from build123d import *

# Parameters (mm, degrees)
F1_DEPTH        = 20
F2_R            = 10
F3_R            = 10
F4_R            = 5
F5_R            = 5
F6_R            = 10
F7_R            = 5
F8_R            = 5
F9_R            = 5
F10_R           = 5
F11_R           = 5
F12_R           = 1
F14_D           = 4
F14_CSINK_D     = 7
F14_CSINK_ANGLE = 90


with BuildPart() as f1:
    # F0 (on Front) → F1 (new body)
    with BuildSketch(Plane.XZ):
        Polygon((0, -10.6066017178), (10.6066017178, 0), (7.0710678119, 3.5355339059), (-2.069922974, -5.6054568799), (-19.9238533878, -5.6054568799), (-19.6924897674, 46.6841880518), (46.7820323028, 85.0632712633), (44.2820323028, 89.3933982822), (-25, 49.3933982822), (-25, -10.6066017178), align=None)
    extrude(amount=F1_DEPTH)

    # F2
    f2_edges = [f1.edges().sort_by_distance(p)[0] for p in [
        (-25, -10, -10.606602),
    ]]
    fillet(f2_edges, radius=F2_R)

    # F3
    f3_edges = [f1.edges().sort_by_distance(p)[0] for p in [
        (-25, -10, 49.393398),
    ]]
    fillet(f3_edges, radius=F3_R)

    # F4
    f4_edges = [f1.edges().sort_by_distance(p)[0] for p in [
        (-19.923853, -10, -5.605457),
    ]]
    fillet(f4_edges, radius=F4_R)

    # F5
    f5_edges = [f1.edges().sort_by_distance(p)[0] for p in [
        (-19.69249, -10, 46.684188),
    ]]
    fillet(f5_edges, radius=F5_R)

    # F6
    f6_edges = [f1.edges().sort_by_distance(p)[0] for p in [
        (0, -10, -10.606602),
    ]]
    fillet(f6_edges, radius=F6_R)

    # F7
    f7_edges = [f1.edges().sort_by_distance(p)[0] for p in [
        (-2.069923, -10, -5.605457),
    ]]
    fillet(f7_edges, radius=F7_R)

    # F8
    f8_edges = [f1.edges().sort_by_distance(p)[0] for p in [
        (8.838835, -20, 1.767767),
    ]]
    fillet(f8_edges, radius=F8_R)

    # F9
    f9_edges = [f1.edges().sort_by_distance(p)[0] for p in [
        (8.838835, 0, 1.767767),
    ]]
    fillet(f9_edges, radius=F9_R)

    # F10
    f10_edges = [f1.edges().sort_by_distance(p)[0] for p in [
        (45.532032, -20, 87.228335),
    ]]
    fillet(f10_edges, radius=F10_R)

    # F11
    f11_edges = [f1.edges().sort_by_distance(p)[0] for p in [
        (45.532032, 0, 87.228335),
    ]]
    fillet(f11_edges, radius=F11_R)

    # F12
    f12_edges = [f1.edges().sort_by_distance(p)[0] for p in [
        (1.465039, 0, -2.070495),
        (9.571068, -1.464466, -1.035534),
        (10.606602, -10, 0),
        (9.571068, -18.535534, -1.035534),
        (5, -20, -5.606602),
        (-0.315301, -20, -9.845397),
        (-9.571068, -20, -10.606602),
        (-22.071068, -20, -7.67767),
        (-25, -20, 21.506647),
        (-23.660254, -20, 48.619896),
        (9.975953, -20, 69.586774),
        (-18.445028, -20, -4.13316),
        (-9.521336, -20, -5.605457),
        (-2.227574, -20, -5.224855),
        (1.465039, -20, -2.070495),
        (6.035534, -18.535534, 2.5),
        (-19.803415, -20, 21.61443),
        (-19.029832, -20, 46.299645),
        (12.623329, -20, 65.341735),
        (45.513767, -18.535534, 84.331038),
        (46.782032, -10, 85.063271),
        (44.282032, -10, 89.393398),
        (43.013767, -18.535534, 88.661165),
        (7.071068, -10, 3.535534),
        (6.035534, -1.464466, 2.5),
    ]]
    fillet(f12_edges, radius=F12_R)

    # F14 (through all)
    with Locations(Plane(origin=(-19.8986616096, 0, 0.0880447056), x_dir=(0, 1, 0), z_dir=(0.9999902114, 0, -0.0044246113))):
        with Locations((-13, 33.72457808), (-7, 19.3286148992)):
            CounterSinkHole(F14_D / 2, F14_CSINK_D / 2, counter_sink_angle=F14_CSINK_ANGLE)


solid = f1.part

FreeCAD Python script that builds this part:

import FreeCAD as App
import Part
import Sketcher

V = App.Vector
Q = App.Units.Quantity


def edges_at(feature, points):
    """Names of the edges that pass closest to the given points."""
    edges = feature.Shape.Edges
    near = lambda p: min(range(len(edges)), key=lambda i: edges[i].distToShape(Part.Vertex(*p))[0])
    return sorted({f"Edge{near(p) + 1}" for p in points})


def add_polygon(sketch, points):
    """Adds a closed chain of lines whose ends are joined by coincident constraints."""
    first, n = sketch.GeometryCount, len(points)
    for a, b in zip(points, points[1:] + points[:1]):
        sketch.addGeometry(Part.LineSegment(App.Vector(*a, 0), App.Vector(*b, 0)), False)
    for i in range(n):
        sketch.addConstraint(Sketcher.Constraint("Coincident", first + i, 2, first + (i + 1) % n, 1))

doc = App.newDocument("Part")
body = doc.addObject("PartDesign::Body", "Body")

# Sketch on XZ plane
sketch1 = body.newObject("Sketcher::SketchObject", "Sketch")
sketch1.AttachmentSupport = (doc.getObject("XZ_Plane"), [""])
sketch1.MapMode = "FlatFace"
add_polygon(sketch1, [(0, -11), (11, 0), (7, 4), (-2, -6), (-20, -6), (-20, 47), (47, 85), (44, 89), (-25, 49), (-25, -11)])  # lines 0-9
sketch1.addConstraint(Sketcher.Constraint("Horizontal", 3))
sketch1.addConstraint(Sketcher.Constraint("Vertical", 8))
sketch1.addConstraint(Sketcher.Constraint("Horizontal", 9))
sketch1.addConstraint(Sketcher.Constraint("PointOnObject", 0, 2, -1))
sketch1.addConstraint(Sketcher.Constraint("PointOnObject", 9, 2, -2))
sketch1.addConstraint(Sketcher.Constraint("Perpendicular", 0, 1))
sketch1.addConstraint(Sketcher.Constraint("Perpendicular", 1, 2))
sketch1.addConstraint(Sketcher.Constraint("Perpendicular", 5, 6))
sketch1.addConstraint(Sketcher.Constraint("Perpendicular", 6, 7))
sketch1.addConstraint(Sketcher.Constraint("Equal", 1, 6))
sketch1.addConstraint(Sketcher.Constraint("DistanceX", 9, 1, 9, 2, Q("25 mm")))
sketch1.addConstraint(Sketcher.Constraint("DistanceY", 8, 2, 8, 1, Q("60 mm")))
sketch1.addConstraint(Sketcher.Constraint("Angle", 0, Q("45 deg")))
sketch1.addConstraint(Sketcher.Constraint("Angle", 5, Q("30 deg")))
sketch1.addConstraint(Sketcher.Constraint("Distance", 0, Q("15 mm")))
sketch1.addConstraint(Sketcher.Constraint("Distance", 1, Q("5 mm")))
sketch1.addConstraint(Sketcher.Constraint("Distance", 7, Q("80 mm")))
sketch1.addConstraint(Sketcher.Constraint("DistanceX", 3, 2, 3, 1, Q("17.85393 mm")))
sketch1.addConstraint(Sketcher.Constraint("DistanceX", 4, 2, -1, 1, Q("19.69249 mm")))
sketch1.addConstraint(Sketcher.Constraint("DistanceX", 2, 2, 1, 2, Q("9.140991 mm")))
pad1 = body.newObject("PartDesign::Pad", "Pad")
pad1.Profile = sketch1
pad1.Length = 20
doc.recompute()

fillet = body.newObject("PartDesign::Fillet", "Fillet")
fillet.Base = (pad1, edges_at(pad1, [(-25, -10, -10.607)]))
fillet.Radius = 10
doc.recompute()

fillet2 = body.newObject("PartDesign::Fillet", "Fillet001")
fillet2.Base = (fillet, edges_at(fillet, [(-25, -10, 49.393)]))
fillet2.Radius = 10
doc.recompute()

fillet3 = body.newObject("PartDesign::Fillet", "Fillet002")
fillet3.Base = (fillet2, edges_at(fillet2, [(-19.924, -10, -5.605)]))
fillet3.Radius = 5
doc.recompute()

fillet4 = body.newObject("PartDesign::Fillet", "Fillet003")
fillet4.Base = (fillet3, edges_at(fillet3, [(-19.692, -10, 46.684)]))
fillet4.Radius = 5
doc.recompute()

fillet5 = body.newObject("PartDesign::Fillet", "Fillet004")
fillet5.Base = (fillet4, edges_at(fillet4, [(0, -10, -10.607)]))
fillet5.Radius = 10
doc.recompute()

fillet6 = body.newObject("PartDesign::Fillet", "Fillet005")
fillet6.Base = (fillet5, edges_at(fillet5, [(-2.07, -10, -5.605)]))
fillet6.Radius = 5
doc.recompute()

fillet7 = body.newObject("PartDesign::Fillet", "Fillet006")
fillet7.Base = (fillet6, edges_at(fillet6, [(8.839, -20, 1.768)]))
fillet7.Radius = 5
doc.recompute()

fillet8 = body.newObject("PartDesign::Fillet", "Fillet007")
fillet8.Base = (fillet7, edges_at(fillet7, [(8.839, 0, 1.768)]))
fillet8.Radius = 5
doc.recompute()

fillet9 = body.newObject("PartDesign::Fillet", "Fillet008")
fillet9.Base = (fillet8, edges_at(fillet8, [(45.532, -20, 87.228)]))
fillet9.Radius = 5
doc.recompute()

fillet10 = body.newObject("PartDesign::Fillet", "Fillet009")
fillet10.Base = (fillet9, edges_at(fillet9, [(45.532, 0, 87.228)]))
fillet10.Radius = 5
doc.recompute()

fillet11 = body.newObject("PartDesign::Fillet", "Fillet010")
fillet11.Base = (fillet10, edges_at(fillet10, [
    (1.465, 0, -2.07),
    (9.571, -1.464, -1.036),
    (10.607, -10, 0),
    (9.571, -18.536, -1.036),
    (5, -20, -5.607),
    (-0.315, -20, -9.845),
    (-9.571, -20, -10.607),
    (-22.071, -20, -7.678),
    (-25, -20, 21.507),
    (-23.66, -20, 48.62),
    (9.976, -20, 69.587),
    (-18.445, -20, -4.133),
    (-9.521, -20, -5.605),
    (-2.228, -20, -5.225),
    (1.465, -20, -2.07),
    (6.036, -18.536, 2.5),
    (-19.803, -20, 21.614),
    (-19.03, -20, 46.3),
    (12.623, -20, 65.342),
    (45.514, -18.536, 84.331),
    (46.782, -10, 85.063),
    (44.282, -10, 89.393),
    (43.014, -18.536, 88.661),
    (7.071, -10, 3.536),
    (6.036, -1.464, 2.5),
]))
fillet11.Radius = 1

# Sketch on an angled plane
sketch2 = body.newObject("Sketcher::SketchObject", "Sketch001")
sketch2.Placement = App.Placement(V(-19.898662, 0, 0.088045), App.Rotation(V(0, 1, 0), V(0.004424611, 0, 0.999990211), V(0.999990211, 0, -0.004424611), "ZXY"))
sketch2.addGeometry(Part.Circle(V(-13, 33.7, 0), V(0, 0, 1), 2), False)
sketch2.addGeometry(Part.Circle(V(-7, 19.3, 0), V(0, 0, 1), 2), False)
sketch2.addConstraint(Sketcher.Constraint("Equal", 0, 1))
sketch2.addConstraint(Sketcher.Constraint("Diameter", 0, Q("4 mm")))
sketch2.addConstraint(Sketcher.Constraint("DistanceX", 0, 3, -1, 1, Q("13 mm")))
sketch2.addConstraint(Sketcher.Constraint("DistanceX", 1, 3, -1, 1, Q("7 mm")))
sketch2.addConstraint(Sketcher.Constraint("DistanceY", -1, 1, 0, 3, Q("33.724578 mm")))
sketch2.addConstraint(Sketcher.Constraint("DistanceY", -1, 1, 1, 3, Q("19.328615 mm")))
doc.recompute()
hole = body.newObject("PartDesign::Hole", "Hole")
hole.Profile = sketch2
hole.ThreadType = "None"
hole.Diameter = 4
hole.DepthType = "ThroughAll"
hole.HoleCutType = "Countersink"
hole.HoleCutDiameter = 7
hole.HoleCutCountersinkAngle = 90

doc.recompute()
